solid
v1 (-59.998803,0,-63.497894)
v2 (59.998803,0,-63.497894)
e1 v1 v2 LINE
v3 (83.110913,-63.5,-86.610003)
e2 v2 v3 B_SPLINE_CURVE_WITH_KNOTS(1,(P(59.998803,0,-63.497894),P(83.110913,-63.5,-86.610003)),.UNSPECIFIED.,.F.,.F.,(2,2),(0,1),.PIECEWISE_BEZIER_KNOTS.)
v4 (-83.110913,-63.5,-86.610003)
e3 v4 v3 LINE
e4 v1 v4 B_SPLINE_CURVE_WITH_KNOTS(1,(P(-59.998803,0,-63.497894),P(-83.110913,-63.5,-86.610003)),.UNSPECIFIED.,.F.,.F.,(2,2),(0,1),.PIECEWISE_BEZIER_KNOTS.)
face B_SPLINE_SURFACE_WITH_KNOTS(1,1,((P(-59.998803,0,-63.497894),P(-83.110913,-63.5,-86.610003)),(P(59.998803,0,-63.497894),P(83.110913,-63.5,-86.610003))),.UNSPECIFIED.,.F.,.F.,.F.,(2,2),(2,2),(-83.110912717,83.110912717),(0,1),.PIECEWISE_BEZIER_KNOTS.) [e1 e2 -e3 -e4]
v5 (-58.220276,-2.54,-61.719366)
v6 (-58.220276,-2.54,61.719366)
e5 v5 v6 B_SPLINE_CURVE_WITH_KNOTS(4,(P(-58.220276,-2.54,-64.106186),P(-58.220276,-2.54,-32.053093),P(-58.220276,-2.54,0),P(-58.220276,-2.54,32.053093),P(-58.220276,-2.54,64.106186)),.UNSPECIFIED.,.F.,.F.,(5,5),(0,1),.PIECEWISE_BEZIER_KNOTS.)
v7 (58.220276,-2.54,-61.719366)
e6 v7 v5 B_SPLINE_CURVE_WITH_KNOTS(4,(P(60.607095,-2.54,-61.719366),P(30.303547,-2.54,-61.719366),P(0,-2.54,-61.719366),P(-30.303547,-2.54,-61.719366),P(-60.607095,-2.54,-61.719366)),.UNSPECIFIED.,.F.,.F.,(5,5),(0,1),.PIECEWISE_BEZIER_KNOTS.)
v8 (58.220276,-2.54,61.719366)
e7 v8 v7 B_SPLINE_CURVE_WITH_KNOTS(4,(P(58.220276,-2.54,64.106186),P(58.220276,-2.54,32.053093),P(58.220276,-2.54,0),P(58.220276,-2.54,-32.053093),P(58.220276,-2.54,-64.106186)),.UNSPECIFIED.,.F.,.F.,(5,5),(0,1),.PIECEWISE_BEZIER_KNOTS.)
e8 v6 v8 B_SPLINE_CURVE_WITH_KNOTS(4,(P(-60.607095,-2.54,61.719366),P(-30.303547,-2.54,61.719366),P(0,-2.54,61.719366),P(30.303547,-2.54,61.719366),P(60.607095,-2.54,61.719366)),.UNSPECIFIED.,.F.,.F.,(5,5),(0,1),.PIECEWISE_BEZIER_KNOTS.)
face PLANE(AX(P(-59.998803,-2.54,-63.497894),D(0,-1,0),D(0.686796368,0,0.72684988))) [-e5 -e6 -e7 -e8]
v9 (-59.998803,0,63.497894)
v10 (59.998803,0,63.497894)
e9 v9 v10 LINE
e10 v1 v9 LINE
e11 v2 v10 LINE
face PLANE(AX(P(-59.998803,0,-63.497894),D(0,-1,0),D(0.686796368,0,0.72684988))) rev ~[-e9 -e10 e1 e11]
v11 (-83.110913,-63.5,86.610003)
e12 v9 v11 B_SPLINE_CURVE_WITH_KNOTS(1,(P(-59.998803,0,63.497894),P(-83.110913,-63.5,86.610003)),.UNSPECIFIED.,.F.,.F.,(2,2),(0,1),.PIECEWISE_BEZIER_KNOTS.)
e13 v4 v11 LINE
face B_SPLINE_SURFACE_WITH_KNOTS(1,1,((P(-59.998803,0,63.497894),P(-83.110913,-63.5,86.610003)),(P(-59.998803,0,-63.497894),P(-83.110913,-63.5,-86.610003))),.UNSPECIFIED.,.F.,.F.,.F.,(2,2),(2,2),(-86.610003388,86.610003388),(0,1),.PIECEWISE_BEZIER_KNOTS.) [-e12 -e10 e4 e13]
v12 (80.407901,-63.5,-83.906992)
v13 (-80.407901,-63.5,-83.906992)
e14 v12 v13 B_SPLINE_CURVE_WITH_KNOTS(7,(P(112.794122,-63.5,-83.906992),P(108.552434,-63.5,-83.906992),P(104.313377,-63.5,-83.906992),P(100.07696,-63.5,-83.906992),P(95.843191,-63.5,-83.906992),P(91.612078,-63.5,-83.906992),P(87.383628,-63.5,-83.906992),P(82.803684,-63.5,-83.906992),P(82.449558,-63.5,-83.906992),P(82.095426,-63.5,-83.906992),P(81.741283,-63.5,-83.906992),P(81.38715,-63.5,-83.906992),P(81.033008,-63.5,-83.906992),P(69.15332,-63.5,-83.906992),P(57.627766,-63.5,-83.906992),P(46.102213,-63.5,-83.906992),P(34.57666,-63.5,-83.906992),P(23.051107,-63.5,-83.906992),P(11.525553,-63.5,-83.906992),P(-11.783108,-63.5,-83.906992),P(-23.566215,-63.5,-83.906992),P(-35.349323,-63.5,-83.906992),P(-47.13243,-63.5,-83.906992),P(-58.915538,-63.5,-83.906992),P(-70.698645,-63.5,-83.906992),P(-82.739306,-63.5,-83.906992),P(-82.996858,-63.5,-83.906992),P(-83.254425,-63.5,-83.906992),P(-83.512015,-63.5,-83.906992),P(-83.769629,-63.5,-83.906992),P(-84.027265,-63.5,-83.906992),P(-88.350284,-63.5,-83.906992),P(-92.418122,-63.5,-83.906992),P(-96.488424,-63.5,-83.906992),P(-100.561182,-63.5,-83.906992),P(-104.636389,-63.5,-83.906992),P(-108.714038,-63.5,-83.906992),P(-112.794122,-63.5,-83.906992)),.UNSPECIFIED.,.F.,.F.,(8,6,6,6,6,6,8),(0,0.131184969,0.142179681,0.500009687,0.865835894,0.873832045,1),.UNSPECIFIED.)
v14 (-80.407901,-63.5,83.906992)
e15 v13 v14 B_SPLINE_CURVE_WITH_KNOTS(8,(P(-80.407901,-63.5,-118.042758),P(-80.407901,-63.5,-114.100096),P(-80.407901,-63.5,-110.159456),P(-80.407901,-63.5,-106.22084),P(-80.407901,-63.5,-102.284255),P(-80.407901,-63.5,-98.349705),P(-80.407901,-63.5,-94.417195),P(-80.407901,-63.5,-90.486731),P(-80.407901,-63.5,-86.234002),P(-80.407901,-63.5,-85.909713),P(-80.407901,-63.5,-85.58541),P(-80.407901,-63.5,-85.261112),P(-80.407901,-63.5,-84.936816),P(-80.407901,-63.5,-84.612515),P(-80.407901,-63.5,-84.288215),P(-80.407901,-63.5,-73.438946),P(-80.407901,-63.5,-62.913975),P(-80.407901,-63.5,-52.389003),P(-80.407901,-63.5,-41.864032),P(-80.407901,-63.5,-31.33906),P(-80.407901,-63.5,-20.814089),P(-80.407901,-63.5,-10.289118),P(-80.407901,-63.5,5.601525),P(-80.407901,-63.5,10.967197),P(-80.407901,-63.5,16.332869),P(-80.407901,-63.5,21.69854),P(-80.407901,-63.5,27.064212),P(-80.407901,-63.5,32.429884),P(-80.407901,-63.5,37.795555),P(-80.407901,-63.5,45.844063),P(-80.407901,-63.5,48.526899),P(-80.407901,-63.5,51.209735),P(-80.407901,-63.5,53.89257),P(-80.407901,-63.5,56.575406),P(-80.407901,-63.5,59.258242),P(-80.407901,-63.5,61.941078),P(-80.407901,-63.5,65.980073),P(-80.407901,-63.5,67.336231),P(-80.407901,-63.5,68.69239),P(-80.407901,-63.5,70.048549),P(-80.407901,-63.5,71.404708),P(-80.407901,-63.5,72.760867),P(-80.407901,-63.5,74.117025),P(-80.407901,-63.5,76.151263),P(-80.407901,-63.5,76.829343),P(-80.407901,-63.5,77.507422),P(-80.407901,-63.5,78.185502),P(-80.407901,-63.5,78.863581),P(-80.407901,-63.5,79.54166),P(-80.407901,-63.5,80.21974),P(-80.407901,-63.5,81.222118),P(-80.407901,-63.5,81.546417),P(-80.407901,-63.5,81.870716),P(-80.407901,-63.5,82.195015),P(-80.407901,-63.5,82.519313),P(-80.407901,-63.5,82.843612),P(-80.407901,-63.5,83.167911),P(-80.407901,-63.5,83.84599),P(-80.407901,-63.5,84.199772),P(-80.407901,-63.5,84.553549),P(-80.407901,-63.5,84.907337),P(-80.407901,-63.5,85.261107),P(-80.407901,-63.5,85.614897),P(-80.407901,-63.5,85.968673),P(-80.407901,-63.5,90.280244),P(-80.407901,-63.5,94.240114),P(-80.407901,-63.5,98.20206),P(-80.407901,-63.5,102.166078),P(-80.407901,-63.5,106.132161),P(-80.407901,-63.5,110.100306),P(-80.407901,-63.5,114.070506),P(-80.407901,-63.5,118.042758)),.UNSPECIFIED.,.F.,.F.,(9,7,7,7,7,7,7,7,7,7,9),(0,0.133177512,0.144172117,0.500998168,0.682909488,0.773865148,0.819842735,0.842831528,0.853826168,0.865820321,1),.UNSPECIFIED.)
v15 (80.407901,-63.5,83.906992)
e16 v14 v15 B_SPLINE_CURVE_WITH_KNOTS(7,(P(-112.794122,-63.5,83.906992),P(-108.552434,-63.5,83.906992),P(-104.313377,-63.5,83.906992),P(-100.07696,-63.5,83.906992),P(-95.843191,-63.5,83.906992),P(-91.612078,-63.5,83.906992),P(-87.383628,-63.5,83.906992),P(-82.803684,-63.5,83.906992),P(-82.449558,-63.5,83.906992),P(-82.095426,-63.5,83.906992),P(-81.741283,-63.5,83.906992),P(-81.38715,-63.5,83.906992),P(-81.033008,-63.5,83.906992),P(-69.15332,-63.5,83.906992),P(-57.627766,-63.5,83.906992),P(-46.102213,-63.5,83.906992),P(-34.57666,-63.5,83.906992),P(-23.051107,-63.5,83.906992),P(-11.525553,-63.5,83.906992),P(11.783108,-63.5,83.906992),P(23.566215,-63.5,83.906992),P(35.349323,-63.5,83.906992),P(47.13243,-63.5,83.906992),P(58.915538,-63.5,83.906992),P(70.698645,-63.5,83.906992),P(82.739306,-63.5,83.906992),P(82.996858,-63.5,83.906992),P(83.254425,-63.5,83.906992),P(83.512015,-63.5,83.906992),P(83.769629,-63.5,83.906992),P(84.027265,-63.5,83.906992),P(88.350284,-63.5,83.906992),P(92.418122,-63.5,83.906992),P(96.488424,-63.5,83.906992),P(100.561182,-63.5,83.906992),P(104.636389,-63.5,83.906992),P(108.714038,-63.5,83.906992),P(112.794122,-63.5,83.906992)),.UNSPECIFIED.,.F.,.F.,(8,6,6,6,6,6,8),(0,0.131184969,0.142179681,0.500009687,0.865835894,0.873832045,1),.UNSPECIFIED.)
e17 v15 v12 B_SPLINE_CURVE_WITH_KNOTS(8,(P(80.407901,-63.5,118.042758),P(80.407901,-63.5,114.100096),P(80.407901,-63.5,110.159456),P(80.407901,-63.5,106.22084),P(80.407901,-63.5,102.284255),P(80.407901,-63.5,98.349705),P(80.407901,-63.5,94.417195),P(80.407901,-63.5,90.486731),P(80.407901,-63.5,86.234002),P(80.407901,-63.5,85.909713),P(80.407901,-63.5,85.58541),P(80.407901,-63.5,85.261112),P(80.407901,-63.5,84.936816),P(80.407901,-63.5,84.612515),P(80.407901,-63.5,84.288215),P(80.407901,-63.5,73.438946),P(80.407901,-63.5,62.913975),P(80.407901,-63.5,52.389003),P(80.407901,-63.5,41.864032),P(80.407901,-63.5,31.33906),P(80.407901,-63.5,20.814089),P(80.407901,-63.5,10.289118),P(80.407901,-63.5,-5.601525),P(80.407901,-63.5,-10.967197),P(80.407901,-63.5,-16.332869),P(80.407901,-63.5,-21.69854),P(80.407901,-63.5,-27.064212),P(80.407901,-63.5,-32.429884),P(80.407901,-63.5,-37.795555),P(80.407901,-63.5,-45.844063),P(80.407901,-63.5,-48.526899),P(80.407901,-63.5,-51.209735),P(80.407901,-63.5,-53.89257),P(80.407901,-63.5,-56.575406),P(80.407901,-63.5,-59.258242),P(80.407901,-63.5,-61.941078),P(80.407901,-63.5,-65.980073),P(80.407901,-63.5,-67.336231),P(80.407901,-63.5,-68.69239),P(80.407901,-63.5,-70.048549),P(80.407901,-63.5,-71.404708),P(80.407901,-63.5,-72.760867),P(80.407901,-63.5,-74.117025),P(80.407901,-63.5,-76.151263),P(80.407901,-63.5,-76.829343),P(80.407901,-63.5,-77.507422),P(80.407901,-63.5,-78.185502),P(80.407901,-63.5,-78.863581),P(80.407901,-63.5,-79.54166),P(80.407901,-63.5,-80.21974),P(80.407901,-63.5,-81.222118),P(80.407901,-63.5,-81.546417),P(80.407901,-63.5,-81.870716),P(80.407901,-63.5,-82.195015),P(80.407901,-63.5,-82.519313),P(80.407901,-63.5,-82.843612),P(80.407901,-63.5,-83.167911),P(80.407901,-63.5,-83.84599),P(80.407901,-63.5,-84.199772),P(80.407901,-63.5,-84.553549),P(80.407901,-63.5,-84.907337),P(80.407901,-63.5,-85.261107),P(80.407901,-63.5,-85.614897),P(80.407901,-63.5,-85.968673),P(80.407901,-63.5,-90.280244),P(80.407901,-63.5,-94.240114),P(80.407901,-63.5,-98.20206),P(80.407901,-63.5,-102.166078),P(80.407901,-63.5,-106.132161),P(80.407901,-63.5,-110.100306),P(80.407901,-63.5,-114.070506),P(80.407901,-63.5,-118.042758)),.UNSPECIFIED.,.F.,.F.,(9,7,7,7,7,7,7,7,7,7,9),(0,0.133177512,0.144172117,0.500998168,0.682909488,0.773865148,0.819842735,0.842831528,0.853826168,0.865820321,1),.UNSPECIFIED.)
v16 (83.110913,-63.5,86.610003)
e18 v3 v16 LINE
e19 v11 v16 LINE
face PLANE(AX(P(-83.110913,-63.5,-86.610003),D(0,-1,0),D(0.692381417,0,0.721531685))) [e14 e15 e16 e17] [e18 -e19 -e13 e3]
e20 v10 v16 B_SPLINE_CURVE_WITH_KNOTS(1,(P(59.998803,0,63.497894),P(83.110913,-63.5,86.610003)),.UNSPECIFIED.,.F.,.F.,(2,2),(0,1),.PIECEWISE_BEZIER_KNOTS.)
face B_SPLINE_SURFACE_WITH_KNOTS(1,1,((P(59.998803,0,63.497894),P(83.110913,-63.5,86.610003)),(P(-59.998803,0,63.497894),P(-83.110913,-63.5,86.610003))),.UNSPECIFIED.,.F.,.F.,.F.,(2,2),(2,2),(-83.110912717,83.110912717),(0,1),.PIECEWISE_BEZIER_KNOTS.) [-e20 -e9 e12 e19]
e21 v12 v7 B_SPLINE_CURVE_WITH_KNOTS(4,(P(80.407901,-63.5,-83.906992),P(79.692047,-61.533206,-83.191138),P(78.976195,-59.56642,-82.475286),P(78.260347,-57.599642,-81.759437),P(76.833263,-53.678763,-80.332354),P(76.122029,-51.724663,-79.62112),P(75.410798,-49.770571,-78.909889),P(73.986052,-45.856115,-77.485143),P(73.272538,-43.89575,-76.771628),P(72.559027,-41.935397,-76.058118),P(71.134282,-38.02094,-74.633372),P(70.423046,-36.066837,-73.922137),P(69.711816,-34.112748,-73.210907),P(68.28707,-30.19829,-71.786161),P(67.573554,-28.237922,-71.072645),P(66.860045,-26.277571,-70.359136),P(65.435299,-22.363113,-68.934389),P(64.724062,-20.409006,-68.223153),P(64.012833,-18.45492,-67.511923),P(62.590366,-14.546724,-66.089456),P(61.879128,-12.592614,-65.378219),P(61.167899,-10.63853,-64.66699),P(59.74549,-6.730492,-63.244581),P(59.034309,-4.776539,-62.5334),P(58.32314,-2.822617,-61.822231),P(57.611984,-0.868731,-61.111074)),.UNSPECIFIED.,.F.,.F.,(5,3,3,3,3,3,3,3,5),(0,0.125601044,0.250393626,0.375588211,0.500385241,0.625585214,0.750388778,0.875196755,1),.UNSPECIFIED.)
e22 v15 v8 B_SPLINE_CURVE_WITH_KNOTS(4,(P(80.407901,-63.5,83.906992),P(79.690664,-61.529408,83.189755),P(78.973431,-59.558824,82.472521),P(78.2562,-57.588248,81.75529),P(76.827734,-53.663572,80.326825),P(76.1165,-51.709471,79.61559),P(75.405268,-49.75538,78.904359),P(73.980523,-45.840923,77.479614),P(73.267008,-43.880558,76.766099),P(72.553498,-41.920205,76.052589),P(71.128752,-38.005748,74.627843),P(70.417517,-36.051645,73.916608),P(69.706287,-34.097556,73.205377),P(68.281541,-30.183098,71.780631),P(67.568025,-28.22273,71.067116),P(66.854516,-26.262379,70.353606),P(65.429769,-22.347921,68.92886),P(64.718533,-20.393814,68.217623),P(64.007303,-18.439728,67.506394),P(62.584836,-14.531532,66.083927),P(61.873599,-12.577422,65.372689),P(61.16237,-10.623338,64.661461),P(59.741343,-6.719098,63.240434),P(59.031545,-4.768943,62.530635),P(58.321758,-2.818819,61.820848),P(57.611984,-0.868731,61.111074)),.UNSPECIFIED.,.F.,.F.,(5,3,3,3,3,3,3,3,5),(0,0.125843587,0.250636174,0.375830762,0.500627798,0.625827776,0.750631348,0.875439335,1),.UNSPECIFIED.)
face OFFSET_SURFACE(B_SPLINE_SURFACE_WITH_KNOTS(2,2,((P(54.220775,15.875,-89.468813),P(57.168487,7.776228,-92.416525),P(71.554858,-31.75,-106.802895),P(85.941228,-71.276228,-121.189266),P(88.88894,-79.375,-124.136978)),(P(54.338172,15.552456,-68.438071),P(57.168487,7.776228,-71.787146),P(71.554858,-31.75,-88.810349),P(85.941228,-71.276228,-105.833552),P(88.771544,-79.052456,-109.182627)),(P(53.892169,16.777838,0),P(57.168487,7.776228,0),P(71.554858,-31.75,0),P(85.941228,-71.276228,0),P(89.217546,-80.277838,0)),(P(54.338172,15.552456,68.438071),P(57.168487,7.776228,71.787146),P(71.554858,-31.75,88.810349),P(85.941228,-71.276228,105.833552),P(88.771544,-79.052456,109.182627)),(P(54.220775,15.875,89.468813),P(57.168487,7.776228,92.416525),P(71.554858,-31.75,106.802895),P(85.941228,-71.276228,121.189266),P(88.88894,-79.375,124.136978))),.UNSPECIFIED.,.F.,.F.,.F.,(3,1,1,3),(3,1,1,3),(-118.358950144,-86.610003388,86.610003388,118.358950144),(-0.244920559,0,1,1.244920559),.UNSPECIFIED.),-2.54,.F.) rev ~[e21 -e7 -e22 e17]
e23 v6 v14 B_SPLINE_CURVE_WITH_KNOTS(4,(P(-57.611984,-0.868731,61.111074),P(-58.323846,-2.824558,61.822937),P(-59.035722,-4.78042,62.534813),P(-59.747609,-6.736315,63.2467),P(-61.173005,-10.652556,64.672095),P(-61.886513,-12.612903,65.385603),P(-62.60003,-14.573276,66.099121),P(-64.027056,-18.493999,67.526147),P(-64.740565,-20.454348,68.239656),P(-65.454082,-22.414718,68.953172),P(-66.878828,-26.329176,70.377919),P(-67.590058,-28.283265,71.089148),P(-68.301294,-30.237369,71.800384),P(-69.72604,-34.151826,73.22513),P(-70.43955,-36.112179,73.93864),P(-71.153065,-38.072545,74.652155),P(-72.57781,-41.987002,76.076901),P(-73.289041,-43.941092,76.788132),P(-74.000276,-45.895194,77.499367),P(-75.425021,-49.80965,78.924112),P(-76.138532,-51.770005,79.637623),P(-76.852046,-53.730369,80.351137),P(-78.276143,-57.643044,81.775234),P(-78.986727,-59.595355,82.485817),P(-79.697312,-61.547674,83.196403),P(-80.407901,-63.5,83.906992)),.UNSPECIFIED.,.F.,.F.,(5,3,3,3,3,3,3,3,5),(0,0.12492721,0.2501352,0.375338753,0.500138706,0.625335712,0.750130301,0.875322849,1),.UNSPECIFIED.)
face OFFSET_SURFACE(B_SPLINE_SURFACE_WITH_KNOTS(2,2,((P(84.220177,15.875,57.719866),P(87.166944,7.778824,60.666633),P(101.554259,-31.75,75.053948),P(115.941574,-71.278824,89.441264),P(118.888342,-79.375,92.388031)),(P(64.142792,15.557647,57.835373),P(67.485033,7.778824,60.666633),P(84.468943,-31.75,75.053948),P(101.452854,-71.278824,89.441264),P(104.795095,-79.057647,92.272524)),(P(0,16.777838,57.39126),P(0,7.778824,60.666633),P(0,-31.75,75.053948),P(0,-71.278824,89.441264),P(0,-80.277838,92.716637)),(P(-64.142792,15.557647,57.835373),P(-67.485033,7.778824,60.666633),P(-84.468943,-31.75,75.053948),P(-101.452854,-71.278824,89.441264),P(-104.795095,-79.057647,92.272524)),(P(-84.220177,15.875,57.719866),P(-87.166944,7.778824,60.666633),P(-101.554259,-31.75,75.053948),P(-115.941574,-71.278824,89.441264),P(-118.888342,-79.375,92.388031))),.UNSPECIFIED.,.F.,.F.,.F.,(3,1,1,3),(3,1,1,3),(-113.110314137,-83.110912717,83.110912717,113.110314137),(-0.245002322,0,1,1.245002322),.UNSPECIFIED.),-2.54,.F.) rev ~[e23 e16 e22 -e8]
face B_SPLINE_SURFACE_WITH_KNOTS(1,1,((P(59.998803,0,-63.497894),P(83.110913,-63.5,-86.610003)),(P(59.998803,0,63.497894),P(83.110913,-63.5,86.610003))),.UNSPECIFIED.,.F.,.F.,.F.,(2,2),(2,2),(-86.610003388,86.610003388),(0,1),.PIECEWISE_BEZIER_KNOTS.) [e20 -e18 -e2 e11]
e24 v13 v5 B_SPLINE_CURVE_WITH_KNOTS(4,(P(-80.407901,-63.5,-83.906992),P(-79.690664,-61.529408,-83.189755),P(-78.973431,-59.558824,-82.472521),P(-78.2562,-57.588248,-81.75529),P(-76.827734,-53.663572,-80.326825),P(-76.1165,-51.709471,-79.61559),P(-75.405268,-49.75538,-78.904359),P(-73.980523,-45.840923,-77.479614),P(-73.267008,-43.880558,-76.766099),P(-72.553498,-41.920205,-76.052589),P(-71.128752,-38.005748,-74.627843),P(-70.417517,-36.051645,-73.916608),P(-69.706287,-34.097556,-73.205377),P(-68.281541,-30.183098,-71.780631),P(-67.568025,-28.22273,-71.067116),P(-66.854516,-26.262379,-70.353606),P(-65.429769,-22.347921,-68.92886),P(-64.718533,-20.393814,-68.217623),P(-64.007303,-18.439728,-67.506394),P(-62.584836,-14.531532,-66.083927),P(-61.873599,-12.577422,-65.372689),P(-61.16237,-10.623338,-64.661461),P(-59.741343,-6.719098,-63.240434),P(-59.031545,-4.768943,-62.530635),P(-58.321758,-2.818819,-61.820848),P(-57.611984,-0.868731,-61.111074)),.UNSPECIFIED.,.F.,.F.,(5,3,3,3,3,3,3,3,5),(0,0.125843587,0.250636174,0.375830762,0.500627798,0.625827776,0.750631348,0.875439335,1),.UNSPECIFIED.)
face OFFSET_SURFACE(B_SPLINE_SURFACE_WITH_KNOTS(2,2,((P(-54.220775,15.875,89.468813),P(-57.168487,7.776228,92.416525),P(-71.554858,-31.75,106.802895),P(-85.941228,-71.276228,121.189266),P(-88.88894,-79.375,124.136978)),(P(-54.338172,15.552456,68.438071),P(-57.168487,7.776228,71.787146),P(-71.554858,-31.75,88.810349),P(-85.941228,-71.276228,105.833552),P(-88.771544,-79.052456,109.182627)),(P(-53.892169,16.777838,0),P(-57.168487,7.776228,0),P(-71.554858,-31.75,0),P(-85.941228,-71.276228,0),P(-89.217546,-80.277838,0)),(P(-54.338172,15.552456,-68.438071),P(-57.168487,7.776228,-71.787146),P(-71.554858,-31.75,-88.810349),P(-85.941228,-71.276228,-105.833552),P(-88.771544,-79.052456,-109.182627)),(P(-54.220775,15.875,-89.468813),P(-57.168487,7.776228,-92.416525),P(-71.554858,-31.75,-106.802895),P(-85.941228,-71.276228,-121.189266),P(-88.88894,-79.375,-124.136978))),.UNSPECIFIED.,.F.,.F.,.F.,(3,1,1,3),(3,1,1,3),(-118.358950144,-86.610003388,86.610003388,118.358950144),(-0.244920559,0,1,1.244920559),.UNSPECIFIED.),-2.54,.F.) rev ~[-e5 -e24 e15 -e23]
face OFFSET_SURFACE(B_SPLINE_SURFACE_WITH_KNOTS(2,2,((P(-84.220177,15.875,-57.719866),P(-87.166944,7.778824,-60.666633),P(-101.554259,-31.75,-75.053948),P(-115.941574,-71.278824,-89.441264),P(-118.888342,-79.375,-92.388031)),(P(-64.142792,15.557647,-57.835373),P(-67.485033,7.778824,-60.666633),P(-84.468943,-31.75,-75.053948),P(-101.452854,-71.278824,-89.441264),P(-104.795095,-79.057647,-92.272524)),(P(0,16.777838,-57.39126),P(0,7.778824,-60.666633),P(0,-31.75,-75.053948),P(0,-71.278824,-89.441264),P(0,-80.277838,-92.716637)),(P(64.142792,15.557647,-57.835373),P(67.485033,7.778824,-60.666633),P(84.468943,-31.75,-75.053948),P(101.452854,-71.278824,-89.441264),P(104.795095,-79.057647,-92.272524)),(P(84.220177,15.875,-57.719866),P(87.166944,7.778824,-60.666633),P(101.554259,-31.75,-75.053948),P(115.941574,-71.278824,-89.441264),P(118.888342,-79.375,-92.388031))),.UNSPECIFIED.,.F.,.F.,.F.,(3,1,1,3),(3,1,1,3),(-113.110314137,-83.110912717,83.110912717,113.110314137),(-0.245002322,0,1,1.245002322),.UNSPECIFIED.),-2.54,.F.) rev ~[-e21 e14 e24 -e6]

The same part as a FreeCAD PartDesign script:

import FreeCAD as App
import Part
import Sketcher
Q = App.Units.Quantity


def faces_at(feature, points):
    """Names of the faces that lie closest to the given points."""
    faces = feature.Shape.Faces
    near = lambda p: min(range(len(faces)), key=lambda i: faces[i].distToShape(Part.Vertex(*p))[0])
    return sorted({f"Face{near(p) + 1}" for p in points})

doc = App.newDocument("Part")
body = doc.addObject("PartDesign::Body", "Body")

# Sketch on XZ plane
sketch1 = body.newObject("Sketcher::SketchObject", "Sketch")
sketch1.AttachmentSupport = (doc.getObject("XZ_Plane"), [""])
sketch1.MapMode = "FlatFace"
sketch1.addGeometry(Part.LineSegment(App.Vector(-60, 63, 0), App.Vector(-60, -63, 0)), False)
sketch1.addGeometry(Part.LineSegment(App.Vector(-60, -63, 0), App.Vector(60, -63, 0)), False)
sketch1.addGeometry(Part.LineSegment(App.Vector(60, -63, 0), App.Vector(60, 63, 0)), False)
sketch1.addGeometry(Part.LineSegment(App.Vector(60, 63, 0), App.Vector(-60, 63, 0)), False)
sketch1.addConstraint(Sketcher.Constraint("Coincident", 0, 2, 1, 1))
sketch1.addConstraint(Sketcher.Constraint("Coincident", 1, 2, 2, 1))
sketch1.addConstraint(Sketcher.Constraint("Coincident", 2, 2, 3, 1))
sketch1.addConstraint(Sketcher.Constraint("Coincident", 3, 2, 0, 1))
sketch1.addConstraint(Sketcher.Constraint("Vertical", 0))
sketch1.addConstraint(Sketcher.Constraint("Horizontal", 1))
sketch1.addConstraint(Sketcher.Constraint("Vertical", 2))
sketch1.addConstraint(Sketcher.Constraint("Horizontal", 3))
sketch1.addConstraint(Sketcher.Constraint("Symmetric", 0, 2, 2, 2, -1, 1))
sketch1.addConstraint(Sketcher.Constraint("DistanceX", 1, 1, 1, 2, 119.997606))
sketch1.addConstraint(Sketcher.Constraint("DistanceY", 0, 2, 0, 1, 126.995787))
pad1 = body.newObject("PartDesign::Pad", "Pad")
pad1.Profile = sketch1
pad1.Length = Q("2.5 in")
pad1.TaperAngle = 20
doc.recompute()

thickness = body.newObject("PartDesign::Thickness", "Thickness")
thickness.Base = (pad1, faces_at(pad1, [(0, -63.5, 0)]))
thickness.Value = Q("0.1 in")
thickness.Reversed = True
thickness.Join = "Arc"

doc.recompute()
